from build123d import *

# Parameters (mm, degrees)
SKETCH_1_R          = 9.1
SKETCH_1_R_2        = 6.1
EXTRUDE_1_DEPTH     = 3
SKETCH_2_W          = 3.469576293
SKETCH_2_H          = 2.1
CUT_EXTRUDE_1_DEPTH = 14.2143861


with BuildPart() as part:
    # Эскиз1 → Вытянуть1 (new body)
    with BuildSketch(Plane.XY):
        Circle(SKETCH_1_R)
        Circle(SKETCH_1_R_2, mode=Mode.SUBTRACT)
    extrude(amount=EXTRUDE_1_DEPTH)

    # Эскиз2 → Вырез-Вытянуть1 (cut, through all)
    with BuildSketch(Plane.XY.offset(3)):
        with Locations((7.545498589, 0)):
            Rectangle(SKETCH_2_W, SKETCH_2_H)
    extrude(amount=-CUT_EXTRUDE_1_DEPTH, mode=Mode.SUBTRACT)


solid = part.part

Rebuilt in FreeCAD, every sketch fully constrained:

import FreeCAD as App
import Part
import Sketcher

V = App.Vector


def add_polygon(sketch, points):
    """Adds a closed chain of lines whose ends are joined by coincident constraints."""
    first, n = sketch.GeometryCount, len(points)
    for a, b in zip(points, points[1:] + points[:1]):
        sketch.addGeometry(Part.LineSegment(App.Vector(*a, 0), App.Vector(*b, 0)), False)
    for i in range(n):
        sketch.addConstraint(Sketcher.Constraint("Coincident", first + i, 2, first + (i + 1) % n, 1))

doc = App.newDocument("Part")
params = doc.addObject("Spreadsheet::Sheet", "Params")
for row, (alias, value) in enumerate([
    ("sketch1_diameter", "18.2 mm"),
    ("sketch1_diameter2", "12.2 mm"),
    ("pad1_length", "3 mm"),
    ("sketch2_height", "2.1 mm"),
], start=1):
    params.set(f"A{row}", alias)
    params.set(f"B{row}", "=" + value)
    params.setAlias(f"B{row}", alias)

body = doc.addObject("PartDesign::Body", "Body")

sketch1 = body.newObject("Sketcher::SketchObject", "Sketch")
sketch1.AttachmentSupport = (doc.getObject("XY_Plane"), [""])
sketch1.MapMode = "FlatFace"
sketch1.addGeometry([
    Part.Circle(V(0, 0, 0), V(0, 0, 1), 9),
    Part.Circle(V(0, 0, 0), V(0, 0, 1), 6),
], False)
sketch1.addConstraint([
    Sketcher.Constraint("Coincident", 0, 3, -1, 1),
    Sketcher.Constraint("Coincident", 1, 3, -1, 1),
    Sketcher.Constraint("Diameter", 0, 18.2),
    Sketcher.Constraint("Diameter", 1, 12.2),
])
sketch1.setExpression("Constraints[2]", "Params.sketch1_diameter")
sketch1.setExpression("Constraints[3]", "Params.sketch1_diameter2")
pad1 = body.newObject("PartDesign::Pad", "Pad")
pad1.Profile = sketch1
pad1.setExpression("Length", "Params.pad1_length")

sketch2 = body.newObject("Sketcher::SketchObject", "Sketch001")
sketch2.AttachmentSupport = (doc.getObject("XY_Plane"), [""])
sketch2.MapMode = "FlatFace"
sketch2.AttachmentOffset = App.Placement(V(0, 0, 3), App.Rotation())
add_polygon(sketch2, [(5.8, 1.1), (5.8, -1.1), (9.3, -1.1), (9.3, 1.1)])
sketch2.addConstraint([
    Sketcher.Constraint("Vertical", 0),
    Sketcher.Constraint("Horizontal", 1),
    Sketcher.Constraint("Vertical", 2),
    Sketcher.Constraint("Horizontal", 3),
    Sketcher.Constraint("DistanceY", 0, 2, 0, 1, 2.1),
    Sketcher.Constraint("DistanceY", 0, 2, -1, 1, 1.05),
    Sketcher.Constraint("DistanceX", 1, 1, 1, 2, 3.469576),
    Sketcher.Constraint("DistanceX", -1, 1, 0, 2, 5.81071),
])
sketch2.setExpression("Constraints[8]", "Params.sketch2_height")
pocket1 = body.newObject("PartDesign::Pocket", "Pocket")
pocket1.Profile = sketch2
pocket1.Type = "ThroughAll"

doc.recompute()
